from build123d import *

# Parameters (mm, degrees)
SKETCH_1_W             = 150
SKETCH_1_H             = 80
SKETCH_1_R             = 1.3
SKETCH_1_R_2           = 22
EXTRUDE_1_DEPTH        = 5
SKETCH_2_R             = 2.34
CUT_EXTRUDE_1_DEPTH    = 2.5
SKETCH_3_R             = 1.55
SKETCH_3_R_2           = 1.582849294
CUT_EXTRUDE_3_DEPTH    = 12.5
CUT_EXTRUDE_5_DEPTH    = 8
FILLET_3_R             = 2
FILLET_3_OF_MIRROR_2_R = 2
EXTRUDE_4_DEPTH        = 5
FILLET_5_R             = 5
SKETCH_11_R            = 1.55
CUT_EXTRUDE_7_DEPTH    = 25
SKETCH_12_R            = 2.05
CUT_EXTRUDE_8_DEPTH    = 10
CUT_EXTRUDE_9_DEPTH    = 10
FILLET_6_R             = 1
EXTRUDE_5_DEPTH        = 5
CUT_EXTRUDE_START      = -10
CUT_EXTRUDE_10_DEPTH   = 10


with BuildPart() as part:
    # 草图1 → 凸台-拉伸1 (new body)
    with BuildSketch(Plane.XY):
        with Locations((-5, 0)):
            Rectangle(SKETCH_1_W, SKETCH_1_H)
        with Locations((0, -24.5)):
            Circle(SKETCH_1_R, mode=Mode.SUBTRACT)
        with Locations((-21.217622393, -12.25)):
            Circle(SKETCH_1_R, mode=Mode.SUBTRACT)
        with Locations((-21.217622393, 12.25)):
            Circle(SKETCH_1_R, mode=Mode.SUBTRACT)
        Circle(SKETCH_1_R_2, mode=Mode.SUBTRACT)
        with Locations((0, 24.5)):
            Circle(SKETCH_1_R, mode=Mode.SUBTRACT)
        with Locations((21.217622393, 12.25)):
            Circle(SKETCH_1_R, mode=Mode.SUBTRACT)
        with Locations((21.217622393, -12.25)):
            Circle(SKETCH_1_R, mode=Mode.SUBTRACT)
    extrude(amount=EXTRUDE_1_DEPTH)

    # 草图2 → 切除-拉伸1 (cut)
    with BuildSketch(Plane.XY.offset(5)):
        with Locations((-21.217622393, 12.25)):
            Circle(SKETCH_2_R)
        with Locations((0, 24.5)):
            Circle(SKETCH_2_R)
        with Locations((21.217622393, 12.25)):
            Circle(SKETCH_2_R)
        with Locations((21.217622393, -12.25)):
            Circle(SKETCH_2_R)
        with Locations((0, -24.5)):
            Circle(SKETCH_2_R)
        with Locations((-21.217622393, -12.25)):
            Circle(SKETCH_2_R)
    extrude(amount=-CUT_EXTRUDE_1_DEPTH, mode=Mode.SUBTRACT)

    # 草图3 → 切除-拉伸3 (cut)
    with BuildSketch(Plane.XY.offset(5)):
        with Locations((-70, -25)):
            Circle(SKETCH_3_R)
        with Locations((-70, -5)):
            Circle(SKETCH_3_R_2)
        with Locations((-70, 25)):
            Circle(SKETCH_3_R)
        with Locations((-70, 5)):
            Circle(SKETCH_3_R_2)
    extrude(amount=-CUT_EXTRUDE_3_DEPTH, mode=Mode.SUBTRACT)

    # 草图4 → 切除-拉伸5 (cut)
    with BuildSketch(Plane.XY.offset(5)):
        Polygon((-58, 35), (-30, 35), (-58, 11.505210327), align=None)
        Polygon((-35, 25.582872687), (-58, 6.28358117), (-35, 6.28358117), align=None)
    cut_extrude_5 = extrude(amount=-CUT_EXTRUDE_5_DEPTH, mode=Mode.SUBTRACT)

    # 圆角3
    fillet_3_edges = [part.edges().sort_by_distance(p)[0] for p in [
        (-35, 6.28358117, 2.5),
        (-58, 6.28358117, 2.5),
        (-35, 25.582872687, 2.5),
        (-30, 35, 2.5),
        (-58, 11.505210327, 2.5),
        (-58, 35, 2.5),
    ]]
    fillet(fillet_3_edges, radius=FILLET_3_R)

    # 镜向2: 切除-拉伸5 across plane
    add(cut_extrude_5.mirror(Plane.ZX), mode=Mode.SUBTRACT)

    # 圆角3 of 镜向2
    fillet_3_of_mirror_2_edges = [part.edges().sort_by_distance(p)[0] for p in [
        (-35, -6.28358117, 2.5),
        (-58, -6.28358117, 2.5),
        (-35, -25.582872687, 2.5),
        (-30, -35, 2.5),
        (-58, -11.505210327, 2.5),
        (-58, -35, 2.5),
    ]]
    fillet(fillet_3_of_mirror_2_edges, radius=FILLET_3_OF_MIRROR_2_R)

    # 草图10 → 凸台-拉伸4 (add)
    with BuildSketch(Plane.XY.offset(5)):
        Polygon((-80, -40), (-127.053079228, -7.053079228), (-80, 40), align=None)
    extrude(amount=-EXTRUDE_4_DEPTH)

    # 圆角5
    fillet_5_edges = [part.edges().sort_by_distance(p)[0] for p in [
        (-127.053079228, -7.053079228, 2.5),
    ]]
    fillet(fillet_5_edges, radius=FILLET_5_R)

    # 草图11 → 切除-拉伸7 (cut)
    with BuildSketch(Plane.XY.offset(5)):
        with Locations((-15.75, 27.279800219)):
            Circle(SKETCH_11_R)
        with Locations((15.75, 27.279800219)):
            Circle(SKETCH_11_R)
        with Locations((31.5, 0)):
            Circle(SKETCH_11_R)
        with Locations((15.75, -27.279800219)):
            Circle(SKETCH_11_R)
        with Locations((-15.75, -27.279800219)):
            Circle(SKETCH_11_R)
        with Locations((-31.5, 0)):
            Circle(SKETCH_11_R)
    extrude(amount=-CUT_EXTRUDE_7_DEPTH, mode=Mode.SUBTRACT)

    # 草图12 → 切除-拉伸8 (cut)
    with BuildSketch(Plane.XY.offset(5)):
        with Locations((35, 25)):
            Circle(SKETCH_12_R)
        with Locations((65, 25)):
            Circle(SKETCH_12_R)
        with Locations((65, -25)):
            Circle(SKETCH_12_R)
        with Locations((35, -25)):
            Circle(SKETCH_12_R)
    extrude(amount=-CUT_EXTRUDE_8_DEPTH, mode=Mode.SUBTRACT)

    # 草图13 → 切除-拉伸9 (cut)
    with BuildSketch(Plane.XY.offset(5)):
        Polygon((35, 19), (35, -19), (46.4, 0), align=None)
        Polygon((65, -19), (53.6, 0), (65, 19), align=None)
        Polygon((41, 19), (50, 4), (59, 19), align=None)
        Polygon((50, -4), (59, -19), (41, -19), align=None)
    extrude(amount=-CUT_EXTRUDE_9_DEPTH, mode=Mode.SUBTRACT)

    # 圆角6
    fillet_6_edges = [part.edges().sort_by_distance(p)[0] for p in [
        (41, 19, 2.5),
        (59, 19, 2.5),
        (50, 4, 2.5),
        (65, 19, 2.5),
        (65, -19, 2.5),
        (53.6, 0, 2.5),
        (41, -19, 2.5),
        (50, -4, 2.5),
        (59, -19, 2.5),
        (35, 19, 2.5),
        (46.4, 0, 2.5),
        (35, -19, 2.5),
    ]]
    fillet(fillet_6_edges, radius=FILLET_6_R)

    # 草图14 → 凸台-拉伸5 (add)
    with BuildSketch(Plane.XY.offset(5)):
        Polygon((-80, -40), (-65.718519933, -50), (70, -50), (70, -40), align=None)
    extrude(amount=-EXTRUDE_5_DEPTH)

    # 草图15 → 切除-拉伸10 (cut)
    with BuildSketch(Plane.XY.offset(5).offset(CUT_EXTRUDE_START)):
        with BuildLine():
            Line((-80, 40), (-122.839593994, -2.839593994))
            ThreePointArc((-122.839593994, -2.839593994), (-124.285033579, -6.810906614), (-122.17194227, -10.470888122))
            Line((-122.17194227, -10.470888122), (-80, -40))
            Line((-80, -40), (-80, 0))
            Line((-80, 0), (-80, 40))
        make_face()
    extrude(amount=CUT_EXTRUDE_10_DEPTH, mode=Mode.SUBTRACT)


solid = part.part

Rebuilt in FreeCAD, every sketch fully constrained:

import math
import FreeCAD as App
import Part
import Sketcher
from FreeCAD import Vector
Q = App.Units.Quantity


def edges_at(feature, points):
    """Names of the edges that pass closest to the given points."""
    edges = feature.Shape.Edges
    near = lambda p: min(range(len(edges)), key=lambda i: edges[i].distToShape(Part.Vertex(*p))[0])
    return sorted({f"Edge{near(p) + 1}" for p in points})

doc = App.newDocument("Part")
body = doc.addObject("PartDesign::Body", "Body")

sketch1 = doc.addObject("Sketcher::SketchObject", "Sketch")
body.addObject(sketch1)
sketch1.AttachmentSupport = (doc.XY_Plane, [""])
sketch1.MapMode = "FlatFace"
sketch1.addGeometry([
    Part.LineSegment(Vector(-80, 40, 0), Vector(-80, -40, 0)),
    Part.LineSegment(Vector(-80, -40, 0), Vector(70, -40, 0)),
    Part.LineSegment(Vector(70, -40, 0), Vector(70, 40, 0)),
    Part.LineSegment(Vector(70, 40, 0), Vector(-80, 40, 0)),
    Part.Circle(Vector(-21.2, -12.2, 0), Vector(0, 0, 1), 1.3),
    Part.Circle(Vector(0, -24.5, 0), Vector(0, 0, 1), 1.3),
    Part.Circle(Vector(21.2, -12.2, 0), Vector(0, 0, 1), 1.3),
    Part.Circle(Vector(-21.2, 12.2, 0), Vector(0, 0, 1), 1.3),
    Part.Circle(Vector(0, 0, 0), Vector(0, 0, 1), 22),
    Part.Circle(Vector(21.2, 12.2, 0), Vector(0, 0, 1), 1.3),
    Part.Circle(Vector(0, 24.5, 0), Vector(0, 0, 1), 1.3),
], False)
sketch1.addConstraint([
    Sketcher.Constraint("Coincident", 0, 2, 1, 1),
    Sketcher.Constraint("Coincident", 1, 2, 2, 1),
    Sketcher.Constraint("Coincident", 2, 2, 3, 1),
    Sketcher.Constraint("Coincident", 3, 2, 0, 1),
    Sketcher.Constraint("Vertical", 0),
    Sketcher.Constraint("Horizontal", 1),
    Sketcher.Constraint("Vertical", 2),
    Sketcher.Constraint("Horizontal", 3),
    Sketcher.Constraint("Coincident", 8, 3, -1, 1),
    Sketcher.Constraint("Equal", 4, 5),
    Sketcher.Constraint("Equal", 5, 6),
    Sketcher.Constraint("Equal", 6, 7),
    Sketcher.Constraint("Equal", 7, 9),
    Sketcher.Constraint("Equal", 9, 10),
    Sketcher.Constraint("Symmetric", 6, 3, 7, 3, -1, 1),
    Sketcher.Constraint("Symmetric", 4, 3, 9, 3, -1, 1),
    Sketcher.Constraint("Symmetric", 5, 3, 10, 3, -1, 1),
    Sketcher.Constraint("Symmetric", 4, 3, 6, 3, -2),
    Sketcher.Constraint("PointOnObject", 5, 3, -2),
    Sketcher.Constraint("Diameter", 8, 44.0),
    Sketcher.Constraint("Diameter", 4, 2.6),
    Sketcher.Constraint("DistanceX", 1, 1, 1, 2, 150.0),
    Sketcher.Constraint("DistanceY", 0, 2, 0, 1, 80.0),
    Sketcher.Constraint("DistanceX", 0, 2, -1, 1, 80.0),
    Sketcher.Constraint("DistanceY", 0, 2, -1, 1, 40.0),
    Sketcher.Constraint("DistanceY", 5, 3, -1, 1, 24.5),
    Sketcher.Constraint("DistanceY", 4, 3, 7, 3, 24.5),
    Sketcher.Constraint("DistanceX", 4, 3, -1, 1, 21.217622),
])
pad1 = doc.addObject("PartDesign::Pad", "Pad")
body.addObject(pad1)
pad1.Profile = sketch1
pad1.Length = 5

sketch2 = doc.addObject("Sketcher::SketchObject", "Sketch001")
body.addObject(sketch2)
sketch2.AttachmentSupport = (doc.XY_Plane, [""])
sketch2.MapMode = "FlatFace"
sketch2.AttachmentOffset = App.Placement(Vector(0, 0, 5), App.Rotation())
sketch2.addGeometry([
    Part.Circle(Vector(-21.2, 12.2, 0), Vector(0, 0, 1), 2.3),
    Part.Circle(Vector(0, 24.5, 0), Vector(0, 0, 1), 2.3),
    Part.Circle(Vector(21.2, 12.2, 0), Vector(0, 0, 1), 2.3),
    Part.Circle(Vector(21.2, -12.2, 0), Vector(0, 0, 1), 2.3),
    Part.Circle(Vector(0, -24.5, 0), Vector(0, 0, 1), 2.3),
    Part.Circle(Vector(-21.2, -12.2, 0), Vector(0, 0, 1), 2.3),
], False)
sketch2.addConstraint([
    Sketcher.Constraint("Equal", 0, 1),
    Sketcher.Constraint("Equal", 1, 2),
    Sketcher.Constraint("Equal", 2, 3),
    Sketcher.Constraint("Equal", 3, 4),
    Sketcher.Constraint("Equal", 4, 5),
    Sketcher.Constraint("Symmetric", 0, 3, 3, 3, -1, 1),
    Sketcher.Constraint("Symmetric", 1, 3, 4, 3, -1, 1),
    Sketcher.Constraint("Symmetric", 2, 3, 5, 3, -1, 1),
    Sketcher.Constraint("Symmetric", 0, 3, 2, 3, -2),
    Sketcher.Constraint("PointOnObject", 1, 3, -2),
    Sketcher.Constraint("Diameter", 0, 4.68),
    Sketcher.Constraint("DistanceY", 4, 3, 1, 3, 49.0),
    Sketcher.Constraint("DistanceY", 3, 3, 2, 3, 24.5),
    Sketcher.Constraint("DistanceX", 0, 3, -1, 1, 21.217622),
])
pocket1 = doc.addObject("PartDesign::Pocket", "Pocket")
body.addObject(pocket1)
pocket1.Profile = sketch2
pocket1.Length = 2.5

sketch3 = doc.addObject("Sketcher::SketchObject", "Sketch002")
body.addObject(sketch3)
sketch3.AttachmentSupport = (doc.XY_Plane, [""])
sketch3.MapMode = "FlatFace"
sketch3.AttachmentOffset = App.Placement(Vector(0, 0, 5), App.Rotation())
sketch3.addGeometry([
    Part.Circle(Vector(-70, -25, 0), Vector(0, 0, 1), 1.6),
    Part.Circle(Vector(-70, -5, 0), Vector(0, 0, 1), 1.6),
    Part.Circle(Vector(-70, 25, 0), Vector(0, 0, 1), 1.6),
    Part.Circle(Vector(-70, 5, 0), Vector(0, 0, 1), 1.6),
], False)
sketch3.addConstraint([
    Sketcher.Constraint("Equal", 0, 2),
    Sketcher.Constraint("Equal", 1, 3),
    Sketcher.Constraint("Symmetric", 0, 3, 2, 3, -1),
    Sketcher.Constraint("Symmetric", 1, 3, 3, 3, -1),
    Sketcher.Constraint("Vertical", 0, 3, 1, 3),
    Sketcher.Constraint("Diameter", 0, 3.1),
    Sketcher.Constraint("DistanceX", 0, 3, -1, 1, 70.0),
    Sketcher.Constraint("DistanceY", 0, 3, -1, 1, 25.0),
    Sketcher.Constraint("DistanceY", 1, 3, -1, 1, 5.0),
    Sketcher.Constraint("Diameter", 1, 3.165699),
])
pocket2 = doc.addObject("PartDesign::Pocket", "Pocket001")
body.addObject(pocket2)
pocket2.Profile = sketch3
pocket2.Length = 12.5

sketch4 = doc.addObject("Sketcher::SketchObject", "Sketch003")
body.addObject(sketch4)
sketch4.AttachmentSupport = (doc.XY_Plane, [""])
sketch4.MapMode = "FlatFace"
sketch4.AttachmentOffset = App.Placement(Vector(0, 0, 5), App.Rotation())
sketch4.addGeometry([
    Part.LineSegment(Vector(-30, 35, 0), Vector(-58, 35, 0)),
    Part.LineSegment(Vector(-58, 35, 0), Vector(-58, 12, 0)),
    Part.LineSegment(Vector(-58, 12, 0), Vector(-30, 35, 0)),
    Part.LineSegment(Vector(-35, 26, 0), Vector(-58, 6, 0)),
    Part.LineSegment(Vector(-58, 6, 0), Vector(-35, 6, 0)),
    Part.LineSegment(Vector(-35, 6, 0), Vector(-35, 26, 0)),
], False)
sketch4.addConstraint([
    Sketcher.Constraint("Coincident", 0, 2, 1, 1),
    Sketcher.Constraint("Coincident", 1, 2, 2, 1),
    Sketcher.Constraint("Coincident", 2, 2, 0, 1),
    Sketcher.Constraint("Coincident", 3, 2, 4, 1),
    Sketcher.Constraint("Coincident", 4, 2, 5, 1),
    Sketcher.Constraint("Coincident", 5, 2, 3, 1),
    Sketcher.Constraint("Horizontal", 0),
    Sketcher.Constraint("Vertical", 1),
    Sketcher.Constraint("Horizontal", 4),
    Sketcher.Constraint("Vertical", 5),
    Sketcher.Constraint("Parallel", 2, 3),
    Sketcher.Constraint("Vertical", 1, 2, 3, 2),
    Sketcher.Constraint("DistanceX", 0, 2, 0, 1, 28.0),
    Sketcher.Constraint("DistanceX", 4, 1, 4, 2, 23.0),
    Sketcher.Constraint("Angle", 2, Q("40 deg")),
    Sketcher.Constraint("DistanceX", 0, 2, -1, 1, 58.0),
    Sketcher.Constraint("DistanceY", -1, 1, 0, 2, 35.0),
    Sketcher.Constraint("DistanceY", -1, 1, 3, 2, 6.283581),
])
pocket3 = doc.addObject("PartDesign::Pocket", "Pocket002")
body.addObject(pocket3)
pocket3.Profile = sketch4
pocket3.Length = 8
doc.recompute()

fillet = doc.addObject("PartDesign::Fillet", "Fillet")
body.addObject(fillet)
fillet.Base = (pocket3, edges_at(pocket3, [
    (-35, 6.284, 2.5),
    (-58, 6.284, 2.5),
    (-35, 25.583, 2.5),
    (-30, 35, 2.5),
    (-58, 11.505, 2.5),
    (-58, 35, 2.5),
]))
fillet.Radius = 2
doc.recompute()

mirrored = doc.addObject("PartDesign::Mirrored", "Mirrored")
body.addObject(mirrored)
mirrored.Originals = [pocket3]
mirrored.MirrorPlane = (doc.XZ_Plane, [""])
body.Tip = mirrored
doc.recompute()

fillet2 = doc.addObject("PartDesign::Fillet", "Fillet001")
body.addObject(fillet2)
fillet2.Base = (mirrored, edges_at(mirrored, [
    (-35, -6.284, 2.5),
    (-58, -6.284, 2.5),
    (-35, -25.583, 2.5),
    (-30, -35, 2.5),
    (-58, -11.505, 2.5),
    (-58, -35, 2.5),
]))
fillet2.Radius = 2

sketch5 = doc.addObject("Sketcher::SketchObject", "Sketch004")
body.addObject(sketch5)
sketch5.AttachmentSupport = (doc.XY_Plane, [""])
sketch5.MapMode = "FlatFace"
sketch5.AttachmentOffset = App.Placement(Vector(0, 0, 5), App.Rotation())
sketch5.addGeometry([
    Part.LineSegment(Vector(-127, -7, 0), Vector(-80, -40, 0)),
    Part.LineSegment(Vector(-80, -40, 0), Vector(-80, 40, 0)),
    Part.LineSegment(Vector(-80, 40, 0), Vector(-127, -7, 0)),
], False)
sketch5.addConstraint([
    Sketcher.Constraint("Coincident", 0, 2, 1, 1),
    Sketcher.Constraint("Coincident", 1, 2, 2, 1),
    Sketcher.Constraint("Coincident", 2, 2, 0, 1),
    Sketcher.Constraint("Vertical", 1),
    Sketcher.Constraint("DistanceY", 1, 1, 1, 2, 80.0),
    Sketcher.Constraint("Angle", 0, Q("-35 deg")),
    Sketcher.Constraint("Angle", 2, Q("-135 deg")),
    Sketcher.Constraint("DistanceX", 0, 2, -1, 1, 80.0),
    Sketcher.Constraint("DistanceY", 0, 2, -1, 1, 40.0),
])
pad2 = doc.addObject("PartDesign::Pad", "Pad001")
body.addObject(pad2)
pad2.Profile = sketch5
pad2.Length = 5
pad2.Reversed = True
doc.recompute()

fillet3 = doc.addObject("PartDesign::Fillet", "Fillet002")
body.addObject(fillet3)
fillet3.Base = (pad2, edges_at(pad2, [(-127.053, -7.053, 2.5)]))
fillet3.Radius = 5

sketch6 = doc.addObject("Sketcher::SketchObject", "Sketch005")
body.addObject(sketch6)
sketch6.AttachmentSupport = (doc.XY_Plane, [""])
sketch6.MapMode = "FlatFace"
sketch6.AttachmentOffset = App.Placement(Vector(0, 0, 5), App.Rotation())
sketch6.addGeometry([
    Part.Circle(Vector(-15.8, 27.3, 0), Vector(0, 0, 1), 1.6),
    Part.Circle(Vector(15.8, 27.3, 0), Vector(0, 0, 1), 1.6),
    Part.Circle(Vector(31.5, 0, 0), Vector(0, 0, 1), 1.6),
    Part.Circle(Vector(15.8, -27.3, 0), Vector(0, 0, 1), 1.6),
    Part.Circle(Vector(-15.8, -27.3, 0), Vector(0, 0, 1), 1.6),
    Part.Circle(Vector(-31.5, 0, 0), Vector(0, 0, 1), 1.6),
], False)
sketch6.addConstraint([
    Sketcher.Constraint("Equal", 0, 1),
    Sketcher.Constraint("Equal", 1, 2),
    Sketcher.Constraint("Equal", 2, 3),
    Sketcher.Constraint("Equal", 3, 4),
    Sketcher.Constraint("Equal", 4, 5),
    Sketcher.Constraint("Symmetric", 0, 3, 3, 3, -1, 1),
    Sketcher.Constraint("Symmetric", 1, 3, 4, 3, -1, 1),
    Sketcher.Constraint("Symmetric", 2, 3, 5, 3, -1, 1),
    Sketcher.Constraint("Symmetric", 0, 3, 1, 3, -2),
    Sketcher.Constraint("PointOnObject", 2, 3, -1),
    Sketcher.Constraint("Diameter", 0, 3.1),
    Sketcher.Constraint("DistanceX", 5, 3, 2, 3, 63.0),
    Sketcher.Constraint("DistanceX", 0, 3, 1, 3, 31.5),
    Sketcher.Constraint("DistanceY", -1, 1, 0, 3, 27.2798),
])
pocket4 = doc.addObject("PartDesign::Pocket", "Pocket003")
body.addObject(pocket4)
pocket4.Profile = sketch6
pocket4.Length = 25

sketch7 = doc.addObject("Sketcher::SketchObject", "Sketch006")
body.addObject(sketch7)
sketch7.AttachmentSupport = (doc.XY_Plane, [""])
sketch7.MapMode = "FlatFace"
sketch7.AttachmentOffset = App.Placement(Vector(0, 0, 5), App.Rotation())
sketch7.addGeometry([
    Part.Circle(Vector(35, 25, 0), Vector(0, 0, 1), 2),
    Part.Circle(Vector(65, 25, 0), Vector(0, 0, 1), 2),
    Part.Circle(Vector(65, -25, 0), Vector(0, 0, 1), 2),
    Part.Circle(Vector(35, -25, 0), Vector(0, 0, 1), 2),
], False)
sketch7.addConstraint([
    Sketcher.Constraint("Equal", 0, 1),
    Sketcher.Constraint("Equal", 1, 2),
    Sketcher.Constraint("Equal", 2, 3),
    Sketcher.Constraint("Symmetric", 1, 3, 2, 3, -1),
    Sketcher.Constraint("Symmetric", 0, 3, 3, 3, -1),
    Sketcher.Constraint("Horizontal", 0, 3, 1, 3),
    Sketcher.Constraint("Diameter", 0, 4.1),
    Sketcher.Constraint("DistanceX", -1, 1, 0, 3, 35.0),
    Sketcher.Constraint("DistanceY", -1, 1, 0, 3, 25.0),
    Sketcher.Constraint("DistanceX", -1, 1, 1, 3, 65.0),
])
pocket5 = doc.addObject("PartDesign::Pocket", "Pocket004")
body.addObject(pocket5)
pocket5.Profile = sketch7
pocket5.Length = 10

sketch8 = doc.addObject("Sketcher::SketchObject", "Sketch007")
body.addObject(sketch8)
sketch8.AttachmentSupport = (doc.XY_Plane, [""])
sketch8.MapMode = "FlatFace"
sketch8.AttachmentOffset = App.Placement(Vector(0, 0, 5), App.Rotation())
sketch8.addGeometry([
    Part.LineSegment(Vector(35, 19, 0), Vector(35, -19, 0)),
    Part.LineSegment(Vector(35, -19, 0), Vector(46, 0, 0)),
    Part.LineSegment(Vector(46, 0, 0), Vector(35, 19, 0)),
    Part.LineSegment(Vector(54, 0, 0), Vector(65, -19, 0)),
    Part.LineSegment(Vector(65, -19, 0), Vector(65, 19, 0)),
    Part.LineSegment(Vector(65, 19, 0), Vector(54, 0, 0)),
    Part.LineSegment(Vector(41, 19, 0), Vector(50, 4, 0)),
    Part.LineSegment(Vector(50, 4, 0), Vector(59, 19, 0)),
    Part.LineSegment(Vector(59, 19, 0), Vector(41, 19, 0)),
    Part.LineSegment(Vector(59, -19, 0), Vector(50, -4, 0)),
    Part.LineSegment(Vector(50, -4, 0), Vector(41, -19, 0)),
    Part.LineSegment(Vector(41, -19, 0), Vector(59, -19, 0)),
], False)
sketch8.addConstraint([
    Sketcher.Constraint("Coincident", 0, 2, 1, 1),
    Sketcher.Constraint("Coincident", 1, 2, 2, 1),
    Sketcher.Constraint("Coincident", 2, 2, 0, 1),
    Sketcher.Constraint("Coincident", 3, 2, 4, 1),
    Sketcher.Constraint("Coincident", 4, 2, 5, 1),
    Sketcher.Constraint("Coincident", 5, 2, 3, 1),
    Sketcher.Constraint("Coincident", 6, 2, 7, 1),
    Sketcher.Constraint("Coincident", 7, 2, 8, 1),
    Sketcher.Constraint("Coincident", 8, 2, 6, 1),
    Sketcher.Constraint("Coincident", 9, 2, 10, 1),
    Sketcher.Constraint("Coincident", 10, 2, 11, 1),
    Sketcher.Constraint("Coincident", 11, 2, 9, 1),
    Sketcher.Constraint("Vertical", 0),
    Sketcher.Constraint("Vertical", 4),
    Sketcher.Constraint("Horizontal", 8),
    Sketcher.Constraint("Horizontal", 11),
    Sketcher.Constraint("Symmetric", 6, 2, 9, 2, -1),
    Sketcher.Constraint("Symmetric", 8, 2, 10, 2, -1),
    Sketcher.Constraint("PointOnObject", 1, 2, -1),
    Sketcher.Constraint("PointOnObject", 5, 2, -1),
    Sketcher.Constraint("Parallel", 2, 3),
    Sketcher.Constraint("Parallel", 1, 5),
    Sketcher.Constraint("Parallel", 3, 6),
    Sketcher.Constraint("Parallel", 5, 7),
    Sketcher.Constraint("Parallel", 6, 9),
    Sketcher.Constraint("Parallel", 7, 10),
    Sketcher.Constraint("Horizontal", 0, 2, 3, 2),
    Sketcher.Constraint("Horizontal", 4, 2, 7, 2),
    Sketcher.Constraint("DistanceX", 8, 2, 8, 1, 18.0),
    Sketcher.Constraint("DistanceY", 0, 2, 0, 1, 38.0),
    Sketcher.Constraint("DistanceX", -1, 1, 0, 2, 35.0),
    Sketcher.Constraint("DistanceX", -1, 1, 3, 2, 65.0),
    Sketcher.Constraint("DistanceX", -1, 1, 6, 2, 50.0),
    Sketcher.Constraint("DistanceY", -1, 1, 6, 2, 4.0),
])
pocket6 = doc.addObject("PartDesign::Pocket", "Pocket005")
body.addObject(pocket6)
pocket6.Profile = sketch8
pocket6.Length = 10
doc.recompute()

fillet4 = doc.addObject("PartDesign::Fillet", "Fillet003")
body.addObject(fillet4)
fillet4.Base = (pocket6, edges_at(pocket6, [
    (41, 19, 2.5),
    (59, 19, 2.5),
    (50, 4, 2.5),
    (65, 19, 2.5),
    (65, -19, 2.5),
    (53.6, 0, 2.5),
    (41, -19, 2.5),
    (50, -4, 2.5),
    (59, -19, 2.5),
    (35, 19, 2.5),
    (46.4, 0, 2.5),
    (35, -19, 2.5),
]))
fillet4.Radius = 1

sketch9 = doc.addObject("Sketcher::SketchObject", "Sketch008")
body.addObject(sketch9)
sketch9.AttachmentSupport = (doc.XY_Plane, [""])
sketch9.MapMode = "FlatFace"
sketch9.AttachmentOffset = App.Placement(Vector(0, 0, 5), App.Rotation())
sketch9.addGeometry([
    Part.LineSegment(Vector(-80, -40, 0), Vector(-66, -50, 0)),
    Part.LineSegment(Vector(-66, -50, 0), Vector(70, -50, 0)),
    Part.LineSegment(Vector(70, -50, 0), Vector(70, -40, 0)),
    Part.LineSegment(Vector(70, -40, 0), Vector(-80, -40, 0)),
], False)
sketch9.addConstraint([
    Sketcher.Constraint("Coincident", 0, 2, 1, 1),
    Sketcher.Constraint("Coincident", 1, 2, 2, 1),
    Sketcher.Constraint("Coincident", 2, 2, 3, 1),
    Sketcher.Constraint("Coincident", 3, 2, 0, 1),
    Sketcher.Constraint("Horizontal", 1),
    Sketcher.Constraint("Vertical", 2),
    Sketcher.Constraint("Horizontal", 3),
    Sketcher.Constraint("DistanceX", 3, 2, 3, 1, 150.0),
    Sketcher.Constraint("DistanceY", 2, 1, 2, 2, 10.0),
    Sketcher.Constraint("Angle", 0, Q("-35 deg")),
    Sketcher.Constraint("DistanceY", 0, 2, -1, 1, 50.0),
    Sketcher.Constraint("DistanceX", -1, 1, 1, 2, 70.0),
])
pad3 = doc.addObject("PartDesign::Pad", "Pad002")
body.addObject(pad3)
pad3.Profile = sketch9
pad3.Length = 5
pad3.Reversed = True

sketch10 = doc.addObject("Sketcher::SketchObject", "Sketch009")
body.addObject(sketch10)
sketch10.AttachmentSupport = (doc.XY_Plane, [""])
sketch10.MapMode = "FlatFace"
sketch10.AttachmentOffset = App.Placement(Vector(0, 0, -5), App.Rotation())
sketch10.addGeometry([
    Part.LineSegment(Vector(-80, 40, 0), Vector(-123, -3, 0)),
    Part.ArcOfCircle(Part.Circle(Vector(-119, -6, 0), Vector(0, 0, 1), 5), math.radians(135), math.radians(235)),
    Part.LineSegment(Vector(-122, -10, 0), Vector(-80, -40, 0)),
    Part.LineSegment(Vector(-80, -40, 0), Vector(-80, 40, 0)),
], False)
sketch10.addConstraint([
    Sketcher.Constraint("Tangent", 0, 2, 1, 1),
    Sketcher.Constraint("Tangent", 1, 2, 2, 1),
    Sketcher.Constraint("Coincident", 2, 2, 3, 1),
    Sketcher.Constraint("Coincident", 3, 2, 0, 1),
    Sketcher.Constraint("Vertical", 3),
    Sketcher.Constraint("Radius", 1, 5.0),
    Sketcher.Constraint("DistanceY", 3, 1, 3, 2, 80.0),
    Sketcher.Constraint("Angle", 0, Q("-135 deg")),
    Sketcher.Constraint("Angle", 2, Q("-35 deg")),
    Sketcher.Constraint("DistanceX", 2, 2, -1, 1, 80.0),
    Sketcher.Constraint("DistanceY", 2, 2, -1, 1, 40.0),
])
pocket7 = doc.addObject("PartDesign::Pocket", "Pocket006")
body.addObject(pocket7)
pocket7.Profile = sketch10
pocket7.Length = 10
pocket7.Reversed = True

doc.recompute()
